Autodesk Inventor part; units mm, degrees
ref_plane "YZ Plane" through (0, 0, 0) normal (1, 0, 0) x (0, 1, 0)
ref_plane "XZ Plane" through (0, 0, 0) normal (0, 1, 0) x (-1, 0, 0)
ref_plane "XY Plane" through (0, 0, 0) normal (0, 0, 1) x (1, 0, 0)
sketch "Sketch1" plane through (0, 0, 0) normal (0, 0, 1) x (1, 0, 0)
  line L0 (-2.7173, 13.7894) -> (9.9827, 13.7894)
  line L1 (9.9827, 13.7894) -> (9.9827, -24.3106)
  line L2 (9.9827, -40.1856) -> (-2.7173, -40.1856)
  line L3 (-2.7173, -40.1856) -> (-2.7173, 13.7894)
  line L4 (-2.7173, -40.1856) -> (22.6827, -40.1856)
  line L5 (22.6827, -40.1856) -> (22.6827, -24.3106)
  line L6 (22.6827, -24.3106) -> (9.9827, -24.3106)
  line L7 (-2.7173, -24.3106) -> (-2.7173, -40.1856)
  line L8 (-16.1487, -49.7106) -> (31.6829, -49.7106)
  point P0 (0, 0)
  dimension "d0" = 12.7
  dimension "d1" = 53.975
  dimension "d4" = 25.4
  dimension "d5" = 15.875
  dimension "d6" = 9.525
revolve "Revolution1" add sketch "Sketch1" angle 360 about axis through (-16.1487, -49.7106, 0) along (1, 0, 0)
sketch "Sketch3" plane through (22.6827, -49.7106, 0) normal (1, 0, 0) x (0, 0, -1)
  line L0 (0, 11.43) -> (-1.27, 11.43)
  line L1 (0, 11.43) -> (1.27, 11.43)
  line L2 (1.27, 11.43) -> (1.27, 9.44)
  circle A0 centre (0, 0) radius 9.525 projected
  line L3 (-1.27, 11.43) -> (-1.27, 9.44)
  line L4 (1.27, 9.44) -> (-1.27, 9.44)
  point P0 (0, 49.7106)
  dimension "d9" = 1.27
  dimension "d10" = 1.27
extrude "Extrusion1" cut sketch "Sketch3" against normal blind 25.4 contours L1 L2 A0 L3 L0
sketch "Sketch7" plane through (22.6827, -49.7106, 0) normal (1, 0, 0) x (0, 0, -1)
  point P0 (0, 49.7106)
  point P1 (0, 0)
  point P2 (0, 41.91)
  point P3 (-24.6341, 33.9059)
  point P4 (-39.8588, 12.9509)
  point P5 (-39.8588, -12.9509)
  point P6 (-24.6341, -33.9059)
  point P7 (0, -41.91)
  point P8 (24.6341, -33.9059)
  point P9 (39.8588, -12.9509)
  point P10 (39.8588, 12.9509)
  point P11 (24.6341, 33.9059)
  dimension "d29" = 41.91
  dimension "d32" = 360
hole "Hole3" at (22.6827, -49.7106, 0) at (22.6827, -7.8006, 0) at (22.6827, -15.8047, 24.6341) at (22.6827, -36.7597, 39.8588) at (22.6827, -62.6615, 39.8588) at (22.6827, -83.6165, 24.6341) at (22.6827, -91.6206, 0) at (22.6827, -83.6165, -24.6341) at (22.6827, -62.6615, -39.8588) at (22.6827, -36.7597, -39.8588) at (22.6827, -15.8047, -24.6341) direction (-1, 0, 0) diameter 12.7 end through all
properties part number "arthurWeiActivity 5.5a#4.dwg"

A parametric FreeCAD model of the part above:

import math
import FreeCAD as App
import Part
import Sketcher
Q = App.Units.Quantity


def add_polygon(sketch, points):
    """Adds a closed chain of lines whose ends are joined by coincident constraints."""
    first, n = sketch.GeometryCount, len(points)
    for a, b in zip(points, points[1:] + points[:1]):
        sketch.addGeometry(Part.LineSegment(App.Vector(*a, 0), App.Vector(*b, 0)), False)
    for i in range(n):
        sketch.addConstraint(Sketcher.Constraint("Coincident", first + i, 2, first + (i + 1) % n, 1))

doc = App.newDocument("Part")
params = doc.addObject("Spreadsheet::Sheet", "Params")
for row, (alias, value) in enumerate([
    ("sketch1_width", "1 in"),
    ("sketch1_height", "2.125 in"),
    ("sketch1_height2", "0.625 in"),
    ("revolution_angle", "360 deg"),
    ("sketch2_radius", "0.375 in"),
    ("pocket1_length", "1 in"),
    ("sketch3_diameter", "0.5 in"),
    ("hole_diameter", "0.5 in"),
], start=1):
    params.set(f"A{row}", alias)
    params.set(f"B{row}", "=" + value)
    params.setAlias(f"B{row}", alias)

body = doc.addObject("PartDesign::Body", "Body")

# Sketch on XY plane
sketch1 = body.newObject("Sketcher::SketchObject", "Sketch")
sketch1.AttachmentSupport = (doc.getObject("XY_Plane"), [""])
sketch1.MapMode = "FlatFace"
add_polygon(sketch1, [(10, 14), (-3, 14), (-3, -40), (23, -40), (23, -24), (10, -24)])  # lines 0-5
sketch1.addGeometry(Part.LineSegment(App.Vector(-3, -50, 0), App.Vector(23, -50, 0)), True)  # axis
sketch1.addConstraint([
    Sketcher.Constraint("Horizontal", 0),
    Sketcher.Constraint("Vertical", 1),
    Sketcher.Constraint("Horizontal", 2),
    Sketcher.Constraint("Vertical", 3),
    Sketcher.Constraint("Horizontal", 4),
    Sketcher.Constraint("Vertical", 5),
    Sketcher.Constraint("Horizontal", 6),
    Sketcher.Constraint("Vertical", 1, 2, 6, 1),
    Sketcher.Constraint("Vertical", 3, 2, 6, 2),
    Sketcher.Constraint("Equal", 0, 4),
    Sketcher.Constraint("DistanceX", 2, 1, 2, 2, Q("1 in")),
    Sketcher.Constraint("DistanceY", 6, 1, 4, 2, Q("1 in")),
    Sketcher.Constraint("DistanceY", 1, 2, 1, 1, Q("2.125 in")),
    Sketcher.Constraint("DistanceY", 3, 1, 3, 2, Q("0.625 in")),
    Sketcher.Constraint("DistanceY", -1, 1, 0, 2, Q("0.5429 in")),
    Sketcher.Constraint("DistanceX", 0, 2, -1, 1, Q("2.7173 mm")),
])
sketch1.setExpression("Constraints[16]", "Params.sketch1_width")
sketch1.setExpression("Constraints[18]", "Params.sketch1_height")
sketch1.setExpression("Constraints[19]", "Params.sketch1_height2")
revolution = body.newObject("PartDesign::Revolution", "Revolution")
revolution.Profile = sketch1
revolution.ReferenceAxis = (sketch1, ["Axis0"])
revolution.setExpression("Angle", "Params.revolution_angle")

# Sketch on YZ plane
sketch2 = body.newObject("Sketcher::SketchObject", "Sketch001")
sketch2.AttachmentSupport = (doc.getObject("YZ_Plane"), [""])
sketch2.MapMode = "FlatFace"
sketch2.AttachmentOffset = App.Placement(App.Vector(0, 0, 22.6827), App.Rotation())
sketch2.addGeometry([
    Part.LineSegment(App.Vector(-38.3, -1.3, 0), App.Vector(-38.3, 1.3, 0)),
    Part.LineSegment(App.Vector(-38.3, 1.3, 0), App.Vector(-40.3, 1.3, 0)),
    Part.ArcOfCircle(Part.Circle(App.Vector(-49.7, 0, 0), App.Vector(0, 0, 1), 9.5), math.radians(-7.66), math.radians(7.66)),
    Part.LineSegment(App.Vector(-40.3, -1.3, 0), App.Vector(-38.3, -1.3, 0)),
], False)
sketch2.addConstraint([
    Sketcher.Constraint("Coincident", 0, 2, 1, 1),
    Sketcher.Constraint("Coincident", 1, 2, 2, 2),
    Sketcher.Constraint("Coincident", 2, 1, 3, 1),
    Sketcher.Constraint("Coincident", 3, 2, 0, 1),
    Sketcher.Constraint("Vertical", 0),
    Sketcher.Constraint("Horizontal", 1),
    Sketcher.Constraint("Horizontal", 3),
    Sketcher.Constraint("Symmetric", 1, 2, 2, 1, -1),
    Sketcher.Constraint("DistanceY", -1, 1, 0, 2, Q("0.05 in")),
    Sketcher.Constraint("Radius", 2, Q("0.375 in")),
    Sketcher.Constraint("DistanceX", 2, 3, 0, 2, Q("0.45 in")),
    Sketcher.Constraint("DistanceX", 2, 3, -1, 1, Q("1.9571 in")),
])
sketch2.setExpression("Constraints[9]", "Params.sketch2_radius")
pocket1 = body.newObject("PartDesign::Pocket", "Pocket")
pocket1.Profile = sketch2
pocket1.setExpression("Length", "Params.pocket1_length")

# Sketch on YZ plane
sketch3 = body.newObject("Sketcher::SketchObject", "Sketch002")
sketch3.AttachmentSupport = (doc.getObject("YZ_Plane"), [""])
sketch3.MapMode = "FlatFace"
sketch3.AttachmentOffset = App.Placement(App.Vector(0, 0, 22.6827), App.Rotation())
sketch3.addGeometry([
    Part.Circle(App.Vector(-50, 0, 0), App.Vector(0, 0, 1), 6),  # 0
    Part.Circle(App.Vector(-8, 0, 0), App.Vector(0, 0, 1), 6),  # 1
    Part.Circle(App.Vector(-16, 25, 0), App.Vector(0, 0, 1), 6),  # 2
    Part.Circle(App.Vector(-37, 40, 0), App.Vector(0, 0, 1), 6),  # 3
    Part.Circle(App.Vector(-63, 40, 0), App.Vector(0, 0, 1), 6),  # 4
    Part.Circle(App.Vector(-84, 25, 0), App.Vector(0, 0, 1), 6),  # 5
    Part.Circle(App.Vector(-92, 0, 0), App.Vector(0, 0, 1), 6),  # 6
    Part.Circle(App.Vector(-84, -25, 0), App.Vector(0, 0, 1), 6),  # 7
    Part.Circle(App.Vector(-63, -40, 0), App.Vector(0, 0, 1), 6),  # 8
    Part.Circle(App.Vector(-37, -40, 0), App.Vector(0, 0, 1), 6),  # 9
    Part.Circle(App.Vector(-16, -25, 0), App.Vector(0, 0, 1), 6),  # 10
], False)
sketch3.addConstraint([
    Sketcher.Constraint("Equal", 0, 1),
    Sketcher.Constraint("Equal", 1, 2),
    Sketcher.Constraint("Equal", 2, 3),
    Sketcher.Constraint("Equal", 3, 4),
    Sketcher.Constraint("Equal", 4, 5),
    Sketcher.Constraint("Equal", 5, 6),
    Sketcher.Constraint("Equal", 6, 7),
    Sketcher.Constraint("Equal", 7, 8),
    Sketcher.Constraint("Equal", 8, 9),
    Sketcher.Constraint("Equal", 9, 10),
    Sketcher.Constraint("Symmetric", 5, 3, 7, 3, -1),
    Sketcher.Constraint("Symmetric", 4, 3, 8, 3, -1),
    Sketcher.Constraint("Symmetric", 3, 3, 9, 3, -1),
    Sketcher.Constraint("Symmetric", 2, 3, 10, 3, -1),
    Sketcher.Constraint("PointOnObject", 0, 3, -1),
    Sketcher.Constraint("PointOnObject", 1, 3, -1),
    Sketcher.Constraint("PointOnObject", 6, 3, -1),
    Sketcher.Constraint("Horizontal", 3, 3, 4, 3),
    Sketcher.Constraint("Horizontal", 2, 3, 5, 3),
    Sketcher.Constraint("Diameter", 0, Q("0.5 in")),
    Sketcher.Constraint("DistanceX", 0, 3, 1, 3, Q("1.65 in")),
    Sketcher.Constraint("DistanceX", 6, 3, 0, 3, Q("1.65 in")),
    Sketcher.Constraint("DistanceX", 4, 3, -1, 1, Q("2.467 in")),
    Sketcher.Constraint("DistanceX", 5, 3, -1, 1, Q("3.292 in")),
    Sketcher.Constraint("DistanceX", 3, 3, 2, 3, Q("0.825 in")),
    Sketcher.Constraint("DistanceX", 0, 3, -1, 1, Q("1.9571 in")),
    Sketcher.Constraint("DistanceY", 2, 3, 3, 3, Q("0.5994 in")),
    Sketcher.Constraint("DistanceY", 7, 3, 5, 3, Q("1.9397 in")),
    Sketcher.Constraint("DistanceX", 2, 3, -1, 1, Q("15.8047 mm")),
])
sketch3.setExpression("Constraints[19]", "Params.sketch3_diameter")
doc.recompute()
hole = body.newObject("PartDesign::Hole", "Hole")
hole.Profile = sketch3
hole.ThreadType = "None"
hole.setExpression("Diameter", "Params.hole_diameter")
hole.DepthType = "ThroughAll"

doc.recompute()
